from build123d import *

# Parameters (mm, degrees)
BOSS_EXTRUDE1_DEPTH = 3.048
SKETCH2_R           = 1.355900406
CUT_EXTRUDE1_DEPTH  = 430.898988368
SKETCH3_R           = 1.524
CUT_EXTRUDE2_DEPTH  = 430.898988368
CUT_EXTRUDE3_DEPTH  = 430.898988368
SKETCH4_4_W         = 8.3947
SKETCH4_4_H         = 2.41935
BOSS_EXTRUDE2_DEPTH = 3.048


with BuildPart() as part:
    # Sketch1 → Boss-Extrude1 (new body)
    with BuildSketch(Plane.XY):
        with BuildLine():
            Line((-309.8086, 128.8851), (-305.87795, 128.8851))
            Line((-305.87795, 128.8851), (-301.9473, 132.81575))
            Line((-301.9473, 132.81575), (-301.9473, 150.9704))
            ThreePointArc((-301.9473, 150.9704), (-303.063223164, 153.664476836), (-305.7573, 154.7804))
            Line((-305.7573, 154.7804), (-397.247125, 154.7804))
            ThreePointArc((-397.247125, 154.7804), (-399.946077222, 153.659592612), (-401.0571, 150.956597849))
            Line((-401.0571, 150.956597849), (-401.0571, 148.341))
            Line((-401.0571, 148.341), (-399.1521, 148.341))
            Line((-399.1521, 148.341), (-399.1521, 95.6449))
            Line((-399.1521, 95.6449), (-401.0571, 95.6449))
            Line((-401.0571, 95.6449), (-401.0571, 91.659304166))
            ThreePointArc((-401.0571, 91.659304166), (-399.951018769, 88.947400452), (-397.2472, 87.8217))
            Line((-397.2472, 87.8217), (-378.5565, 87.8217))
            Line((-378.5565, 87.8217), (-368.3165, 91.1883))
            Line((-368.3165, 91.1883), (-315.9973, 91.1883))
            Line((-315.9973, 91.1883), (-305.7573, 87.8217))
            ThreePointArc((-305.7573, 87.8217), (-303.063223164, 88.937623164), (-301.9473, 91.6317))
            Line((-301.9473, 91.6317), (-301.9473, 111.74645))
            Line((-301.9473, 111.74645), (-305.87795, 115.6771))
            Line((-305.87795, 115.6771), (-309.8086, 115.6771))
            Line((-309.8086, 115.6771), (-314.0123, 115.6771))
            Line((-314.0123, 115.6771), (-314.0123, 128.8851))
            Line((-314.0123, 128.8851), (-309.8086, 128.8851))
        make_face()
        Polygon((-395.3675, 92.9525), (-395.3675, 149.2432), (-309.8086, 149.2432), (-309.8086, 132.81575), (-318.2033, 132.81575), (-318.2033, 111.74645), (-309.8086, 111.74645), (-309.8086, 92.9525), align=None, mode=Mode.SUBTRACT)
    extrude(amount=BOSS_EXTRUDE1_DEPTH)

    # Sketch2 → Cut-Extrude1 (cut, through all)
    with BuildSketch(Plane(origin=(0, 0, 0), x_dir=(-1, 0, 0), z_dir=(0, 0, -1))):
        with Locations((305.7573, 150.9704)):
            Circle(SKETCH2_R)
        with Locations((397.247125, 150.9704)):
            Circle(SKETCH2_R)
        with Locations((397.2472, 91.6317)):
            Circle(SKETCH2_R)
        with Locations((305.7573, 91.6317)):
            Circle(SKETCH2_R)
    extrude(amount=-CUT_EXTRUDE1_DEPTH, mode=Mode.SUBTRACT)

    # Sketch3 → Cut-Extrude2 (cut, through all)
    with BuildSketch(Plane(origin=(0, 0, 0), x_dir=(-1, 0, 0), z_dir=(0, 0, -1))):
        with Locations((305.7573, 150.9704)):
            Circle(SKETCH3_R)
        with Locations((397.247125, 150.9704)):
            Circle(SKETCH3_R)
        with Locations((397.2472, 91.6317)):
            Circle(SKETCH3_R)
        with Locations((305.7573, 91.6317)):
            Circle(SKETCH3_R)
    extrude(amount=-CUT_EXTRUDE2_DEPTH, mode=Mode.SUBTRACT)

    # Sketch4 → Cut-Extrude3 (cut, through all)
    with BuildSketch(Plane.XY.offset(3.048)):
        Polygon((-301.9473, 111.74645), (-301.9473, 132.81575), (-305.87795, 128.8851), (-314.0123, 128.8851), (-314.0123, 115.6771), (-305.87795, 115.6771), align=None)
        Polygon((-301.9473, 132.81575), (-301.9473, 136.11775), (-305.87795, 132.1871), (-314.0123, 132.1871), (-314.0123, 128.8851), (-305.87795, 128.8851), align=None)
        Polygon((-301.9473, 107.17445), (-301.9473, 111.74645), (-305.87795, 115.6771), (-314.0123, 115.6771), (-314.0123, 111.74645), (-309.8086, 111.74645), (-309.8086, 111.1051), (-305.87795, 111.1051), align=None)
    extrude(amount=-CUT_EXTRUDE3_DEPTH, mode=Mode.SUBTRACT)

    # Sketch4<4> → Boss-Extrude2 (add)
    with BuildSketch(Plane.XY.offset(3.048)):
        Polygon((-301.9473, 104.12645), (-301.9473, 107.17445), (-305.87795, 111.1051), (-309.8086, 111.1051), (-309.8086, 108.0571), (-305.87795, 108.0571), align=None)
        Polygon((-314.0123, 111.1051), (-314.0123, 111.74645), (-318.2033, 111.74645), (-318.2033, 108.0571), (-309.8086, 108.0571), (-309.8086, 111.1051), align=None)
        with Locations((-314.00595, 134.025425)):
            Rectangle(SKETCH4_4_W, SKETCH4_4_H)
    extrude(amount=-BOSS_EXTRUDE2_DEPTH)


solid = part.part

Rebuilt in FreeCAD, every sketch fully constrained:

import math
import FreeCAD as App
import Part
import Sketcher
Q = App.Units.Quantity


def add_polygon(sketch, points):
    """Adds a closed chain of lines whose ends are joined by coincident constraints."""
    first, n = sketch.GeometryCount, len(points)
    for a, b in zip(points, points[1:] + points[:1]):
        sketch.addGeometry(Part.LineSegment(App.Vector(*a, 0), App.Vector(*b, 0)), False)
    for i in range(n):
        sketch.addConstraint(Sketcher.Constraint("Coincident", first + i, 2, first + (i + 1) % n, 1))

doc = App.newDocument("Part")
body = doc.addObject("PartDesign::Body", "Body")

sketch1 = body.newObject("Sketcher::SketchObject", "Sketch")
sketch1.AttachmentSupport = (doc.getObject("XY_Plane"), [""])
sketch1.MapMode = "FlatFace"
sketch1.addGeometry(Part.LineSegment(App.Vector(-305.87795, 128.8851, 0), App.Vector(-301.9473, 132.81575, 0)), False)
sketch1.addGeometry(Part.LineSegment(App.Vector(-301.9473, 132.81575, 0), App.Vector(-301.9473, 150.9704, 0)), False)
sketch1.addGeometry(Part.ArcOfCircle(Part.Circle(App.Vector(-305.7573, 150.9704, 0), App.Vector(0, 0, 1), 3.81), math.radians(0), math.radians(90)), False)
sketch1.addGeometry(Part.LineSegment(App.Vector(-305.7573, 154.7804, 0), App.Vector(-397.247125, 154.7804, 0)), False)
sketch1.addGeometry(Part.ArcOfCircle(Part.Circle(App.Vector(-397.247125, 150.9704, 0), App.Vector(0, 0, 1), 3.81), math.radians(90), math.radians(180.207561)), False)
sketch1.addGeometry(Part.LineSegment(App.Vector(-401.0571, 150.956598, 0), App.Vector(-401.0571, 148.341, 0)), False)
sketch1.addGeometry(Part.LineSegment(App.Vector(-401.0571, 148.341, 0), App.Vector(-399.1521, 148.341, 0)), False)
sketch1.addGeometry(Part.LineSegment(App.Vector(-399.1521, 148.341, 0), App.Vector(-399.1521, 95.6449, 0)), False)
sketch1.addGeometry(Part.LineSegment(App.Vector(-399.1521, 95.6449, 0), App.Vector(-401.0571, 95.6449, 0)), False)
sketch1.addGeometry(Part.LineSegment(App.Vector(-401.0571, 95.6449, 0), App.Vector(-401.0571, 91.659304, 0)), False)
sketch1.addGeometry(Part.ArcOfCircle(Part.Circle(App.Vector(-397.2472, 91.6317, 0), App.Vector(0, 0, 1), 3.81), math.radians(179.584878), math.radians(270)), False)
sketch1.addGeometry(Part.LineSegment(App.Vector(-397.2472, 87.8217, 0), App.Vector(-378.5565, 87.8217, 0)), False)
sketch1.addGeometry(Part.LineSegment(App.Vector(-378.5565, 87.8217, 0), App.Vector(-368.3165, 91.1883, 0)), False)
sketch1.addGeometry(Part.LineSegment(App.Vector(-368.3165, 91.1883, 0), App.Vector(-315.9973, 91.1883, 0)), False)
sketch1.addGeometry(Part.LineSegment(App.Vector(-315.9973, 91.1883, 0), App.Vector(-305.7573, 87.8217, 0)), False)
sketch1.addGeometry(Part.ArcOfCircle(Part.Circle(App.Vector(-305.7573, 91.6317, 0), App.Vector(0, 0, 1), 3.81), math.radians(-90), math.radians(0)), False)
sketch1.addGeometry(Part.LineSegment(App.Vector(-301.9473, 91.6317, 0), App.Vector(-301.9473, 111.74645, 0)), False)
sketch1.addGeometry(Part.LineSegment(App.Vector(-301.9473, 111.74645, 0), App.Vector(-305.87795, 115.6771, 0)), False)
sketch1.addGeometry(Part.LineSegment(App.Vector(-305.87795, 115.6771, 0), App.Vector(-314.0123, 115.6771, 0)), False)
sketch1.addGeometry(Part.LineSegment(App.Vector(-314.0123, 115.6771, 0), App.Vector(-314.0123, 128.8851, 0)), False)
sketch1.addGeometry(Part.LineSegment(App.Vector(-314.0123, 128.8851, 0), App.Vector(-305.87795, 128.8851, 0)), False)
add_polygon(sketch1, [(-309.8086, 92.9525), (-395.3675, 92.9525), (-395.3675, 149.2432), (-309.8086, 149.2432), (-309.8086, 132.81575), (-318.2033, 132.81575), (-318.2033, 111.74645), (-309.8086, 111.74645)])
sketch1.addConstraint([
    Sketcher.Constraint("Coincident", 0, 2, 1, 1),
    Sketcher.Constraint("Tangent", 1, 2, 2, 1),
    Sketcher.Constraint("Tangent", 2, 2, 3, 1),
    Sketcher.Constraint("Tangent", 3, 2, 4, 1),
    Sketcher.Constraint("Coincident", 4, 2, 5, 1),
    Sketcher.Constraint("Coincident", 5, 2, 6, 1),
    Sketcher.Constraint("Coincident", 6, 2, 7, 1),
    Sketcher.Constraint("Coincident", 7, 2, 8, 1),
    Sketcher.Constraint("Coincident", 8, 2, 9, 1),
    Sketcher.Constraint("Coincident", 9, 2, 10, 1),
    Sketcher.Constraint("Tangent", 10, 2, 11, 1),
    Sketcher.Constraint("Coincident", 11, 2, 12, 1),
    Sketcher.Constraint("Coincident", 12, 2, 13, 1),
    Sketcher.Constraint("Coincident", 13, 2, 14, 1),
    Sketcher.Constraint("Coincident", 14, 2, 15, 1),
    Sketcher.Constraint("Tangent", 15, 2, 16, 1),
    Sketcher.Constraint("Coincident", 16, 2, 17, 1),
    Sketcher.Constraint("Coincident", 17, 2, 18, 1),
    Sketcher.Constraint("Coincident", 18, 2, 19, 1),
    Sketcher.Constraint("Coincident", 19, 2, 20, 1),
    Sketcher.Constraint("Coincident", 20, 2, 0, 1),
    Sketcher.Constraint("Vertical", 1),
    Sketcher.Constraint("Horizontal", 3),
    Sketcher.Constraint("Vertical", 5),
    Sketcher.Constraint("Horizontal", 6),
    Sketcher.Constraint("Vertical", 7),
    Sketcher.Constraint("Horizontal", 8),
    Sketcher.Constraint("Vertical", 9),
    Sketcher.Constraint("Horizontal", 11),
    Sketcher.Constraint("Horizontal", 13),
    Sketcher.Constraint("Vertical", 16),
    Sketcher.Constraint("Horizontal", 18),
    Sketcher.Constraint("Vertical", 19),
    Sketcher.Constraint("Horizontal", 20),
    Sketcher.Constraint("Horizontal", 21),
    Sketcher.Constraint("Vertical", 22),
    Sketcher.Constraint("Horizontal", 23),
    Sketcher.Constraint("Vertical", 24),
    Sketcher.Constraint("Horizontal", 25),
    Sketcher.Constraint("Vertical", 26),
    Sketcher.Constraint("Horizontal", 27),
    Sketcher.Constraint("Vertical", 28),
    Sketcher.Constraint("Equal", 2, 4),
    Sketcher.Constraint("Equal", 4, 10),
    Sketcher.Constraint("Equal", 10, 15),
    Sketcher.Constraint("Perpendicular", 0, 17),
    Sketcher.Constraint("Horizontal", 10, 3, 15, 3),
    Sketcher.Constraint("Horizontal", 0, 2, 24, 2),
    Sketcher.Constraint("Horizontal", 16, 2, 26, 2),
    Sketcher.Constraint("Vertical", 2, 3, 15, 3),
    Sketcher.Constraint("Vertical", 5, 2, 8, 2),
    Sketcher.Constraint("Vertical", 2, 2, 14, 2),
    Sketcher.Constraint("Vertical", 17, 2, 20, 2),
    Sketcher.Constraint("Vertical", 24, 2, 27, 2),
    Sketcher.Constraint("Equal", 12, 14),
    Sketcher.Constraint("Equal", 0, 17),
    Sketcher.Constraint("Radius", 2, Q("0.15 in")),
    Sketcher.Constraint("DistanceY", 19, 1, 19, 2, Q("0.52 in")),
    Sketcher.Constraint("DistanceX", 6, 1, 6, 2, Q("0.075 in")),
    Sketcher.Constraint("DistanceX", 25, 2, 0, 2, Q("0.64 in")),
    Sketcher.Constraint("DistanceX", 25, 2, 25, 1, Q("0.3305 in")),
    Sketcher.Constraint("DistanceY", 26, 2, 26, 1, Q("0.8295 in")),
    Sketcher.Constraint("DistanceY", 10, 3, 7, 2, Q("0.158 in")),
    Sketcher.Constraint("DistanceX", 7, 2, 12, 2, Q("1.214 in")),
    Sketcher.Constraint("DistanceX", 18, 2, 16, 2, Q("0.475 in")),
    Sketcher.Constraint("DistanceY", 10, 3, 21, 2, Q("0.052 in")),
    Sketcher.Constraint("DistanceX", 7, 2, 21, 2, Q("0.149 in")),
    Sketcher.Constraint("DistanceY", 22, 2, 4, 3, Q("0.068 in")),
    Sketcher.Constraint("DistanceX", 11, 1, 11, 2, Q("18.6907 mm")),
    Sketcher.Constraint("DistanceX", 13, 1, 13, 2, Q("52.3192 mm")),
    Sketcher.Constraint("DistanceX", 21, 2, 21, 1, Q("85.5589 mm")),
    Sketcher.Constraint("DistanceY", 7, 2, 7, 1, Q("52.6961 mm")),
    Sketcher.Constraint("DistanceY", 22, 1, 22, 2, Q("56.2907 mm")),
    Sketcher.Constraint("DistanceY", 19, 2, 2, 3, Q("0.8695 in")),
    Sketcher.Constraint("DistanceX", 2, 3, -1, 1, Q("305.7573 mm")),
    Sketcher.Constraint("DistanceY", -1, 1, 2, 3, Q("150.9704 mm")),
    Sketcher.Constraint("DistanceY", -1, 1, 12, 2, Q("91.1883 mm")),
    Sketcher.Constraint("DistanceX", 3, 2, 3, 1, Q("91.489825 mm")),
])
pad1 = body.newObject("PartDesign::Pad", "Pad")
pad1.Profile = sketch1
pad1.Length = Q("0.12 in")

sketch2 = body.newObject("Sketcher::SketchObject", "Sketch001")
sketch2.AttachmentSupport = (doc.getObject("XY_Plane"), [""])
sketch2.MapMode = "FlatFace"
sketch2.addGeometry([
    Part.Circle(App.Vector(-305.7573, 150.9704, 0), App.Vector(0, 0, 1), 1.3559),
    Part.Circle(App.Vector(-397.247125, 150.9704, 0), App.Vector(0, 0, 1), 1.3559),
    Part.Circle(App.Vector(-397.2472, 91.6317, 0), App.Vector(0, 0, 1), 1.3559),
    Part.Circle(App.Vector(-305.7573, 91.6317, 0), App.Vector(0, 0, 1), 1.3559),
], False)
sketch2.addConstraint([
    Sketcher.Constraint("Equal", 0, 1),
    Sketcher.Constraint("Equal", 1, 2),
    Sketcher.Constraint("Equal", 2, 3),
    Sketcher.Constraint("Horizontal", 0, 3, 1, 3),
    Sketcher.Constraint("Horizontal", 2, 3, 3, 3),
    Sketcher.Constraint("Vertical", 0, 3, 3, 3),
    Sketcher.Constraint("Diameter", 0, Q("2.711801 mm")),
    Sketcher.Constraint("DistanceX", 0, 3, -1, 1, Q("305.7573 mm")),
    Sketcher.Constraint("DistanceY", -1, 1, 0, 3, Q("150.9704 mm")),
    Sketcher.Constraint("DistanceX", 2, 3, -1, 1, Q("397.2472 mm")),
    Sketcher.Constraint("DistanceY", -1, 1, 2, 3, Q("91.6317 mm")),
    Sketcher.Constraint("DistanceX", 1, 3, -1, 1, Q("397.247125 mm")),
])
pocket1 = body.newObject("PartDesign::Pocket", "Pocket")
pocket1.Profile = sketch2
pocket1.Type = "ThroughAll"
pocket1.Reversed = True

sketch3 = body.newObject("Sketcher::SketchObject", "Sketch002")
sketch3.AttachmentSupport = (doc.getObject("XY_Plane"), [""])
sketch3.MapMode = "FlatFace"
sketch3.addGeometry([
    Part.Circle(App.Vector(-305.7573, 150.9704, 0), App.Vector(0, 0, 1), 1.524),
    Part.Circle(App.Vector(-397.247125, 150.9704, 0), App.Vector(0, 0, 1), 1.524),
    Part.Circle(App.Vector(-397.2472, 91.6317, 0), App.Vector(0, 0, 1), 1.524),
    Part.Circle(App.Vector(-305.7573, 91.6317, 0), App.Vector(0, 0, 1), 1.524),
], False)
sketch3.addConstraint([
    Sketcher.Constraint("Equal", 0, 1),
    Sketcher.Constraint("Equal", 1, 2),
    Sketcher.Constraint("Equal", 2, 3),
    Sketcher.Constraint("Horizontal", 0, 3, 1, 3),
    Sketcher.Constraint("Horizontal", 2, 3, 3, 3),
    Sketcher.Constraint("Vertical", 0, 3, 3, 3),
    Sketcher.Constraint("Diameter", 0, Q("0.12 in")),
    Sketcher.Constraint("DistanceX", 0, 3, -1, 1, Q("305.7573 mm")),
    Sketcher.Constraint("DistanceY", -1, 1, 0, 3, Q("150.9704 mm")),
    Sketcher.Constraint("DistanceX", 2, 3, -1, 1, Q("397.2472 mm")),
    Sketcher.Constraint("DistanceY", -1, 1, 2, 3, Q("91.6317 mm")),
    Sketcher.Constraint("DistanceX", 1, 3, -1, 1, Q("397.247125 mm")),
])
pocket2 = body.newObject("PartDesign::Pocket", "Pocket001")
pocket2.Profile = sketch3
pocket2.Type = "ThroughAll"
pocket2.Reversed = True

sketch4 = body.newObject("Sketcher::SketchObject", "Sketch003")
sketch4.AttachmentSupport = (doc.getObject("XY_Plane"), [""])
sketch4.MapMode = "FlatFace"
sketch4.AttachmentOffset = App.Placement(App.Vector(0, 0, 0.12 * 25.4), App.Rotation())
add_polygon(sketch4, [(-301.9473, 136.11775), (-305.87795, 132.1871), (-314.0123, 132.1871), (-314.0123, 111.74645), (-309.8086, 111.74645), (-309.8086, 111.1051), (-305.87795, 111.1051), (-301.9473, 107.17445)])
sketch4.addConstraint([
    Sketcher.Constraint("Horizontal", 1),
    Sketcher.Constraint("Vertical", 2),
    Sketcher.Constraint("Horizontal", 3),
    Sketcher.Constraint("Vertical", 4),
    Sketcher.Constraint("Horizontal", 5),
    Sketcher.Constraint("Vertical", 7),
    Sketcher.Constraint("Perpendicular", 0, 6),
    Sketcher.Constraint("Vertical", 0, 2, 5, 2),
    Sketcher.Constraint("Equal", 0, 6),
    Sketcher.Constraint("DistanceY", 4, 2, 0, 2, Q("0.83 in")),
    Sketcher.Constraint("DistanceY", 6, 2, 3, 2, Q("0.18 in")),
    Sketcher.Constraint("DistanceX", 3, 1, 3, 2, Q("0.1655 in")),
    Sketcher.Constraint("DistanceY", 7, 1, 7, 2, Q("1.1395 in")),
    Sketcher.Constraint("DistanceX", 2, 2, 6, 2, Q("0.475 in")),
    Sketcher.Constraint("DistanceY", -1, 1, 0, 2, Q("132.1871 mm")),
    Sketcher.Constraint("DistanceX", 1, 2, -1, 1, Q("314.0123 mm")),
])
pocket3 = body.newObject("PartDesign::Pocket", "Pocket002")
pocket3.Profile = sketch4
pocket3.Type = "ThroughAll"

sketch5 = body.newObject("Sketcher::SketchObject", "Sketch004")
sketch5.AttachmentSupport = (doc.getObject("XY_Plane"), [""])
sketch5.MapMode = "FlatFace"
sketch5.AttachmentOffset = App.Placement(App.Vector(0, 0, 0.12 * 25.4), App.Rotation())
add_polygon(sketch5, [(-301.9473, 104.12645), (-301.9473, 107.17445), (-305.87795, 111.1051), (-314.0123, 111.1051), (-314.0123, 111.74645), (-318.2033, 111.74645), (-318.2033, 108.0571), (-305.87795, 108.0571)])
add_polygon(sketch5, [(-318.2033, 135.2351), (-318.2033, 132.81575), (-309.8086, 132.81575), (-309.8086, 135.2351)])
sketch5.addConstraint([
    Sketcher.Constraint("Vertical", 0),
    Sketcher.Constraint("Horizontal", 2),
    Sketcher.Constraint("Vertical", 3),
    Sketcher.Constraint("Horizontal", 4),
    Sketcher.Constraint("Vertical", 5),
    Sketcher.Constraint("Horizontal", 6),
    Sketcher.Constraint("Vertical", 8),
    Sketcher.Constraint("Horizontal", 9),
    Sketcher.Constraint("Vertical", 10),
    Sketcher.Constraint("Horizontal", 11),
    Sketcher.Constraint("Parallel", 1, 7),
    Sketcher.Constraint("Vertical", 1, 2, 6, 2),
    Sketcher.Constraint("Vertical", 5, 2, 8, 2),
    Sketcher.Constraint("Angle", 1, Q("135 deg")),
    Sketcher.Constraint("DistanceY", 0, 1, 0, 2, Q("0.12 in")),
    Sketcher.Constraint("DistanceY", 7, 2, 3, 2, Q("0.3 in")),
    Sketcher.Constraint("DistanceX", 4, 2, 4, 1, Q("0.165 in")),
    Sketcher.Constraint("DistanceX", 4, 2, 0, 2, Q("0.64 in")),
    Sketcher.Constraint("DistanceY", 1, 2, 10, 2, Q("0.95 in")),
    Sketcher.Constraint("DistanceX", 9, 1, 9, 2, Q("0.3305 in")),
    Sketcher.Constraint("DistanceY", 4, 2, 8, 2, Q("0.8295 in")),
    Sketcher.Constraint("DistanceX", 2, 2, 2, 1, Q("8.13435 mm")),
    Sketcher.Constraint("DistanceX", 0, 2, -1, 1, Q("301.9473 mm")),
    Sketcher.Constraint("DistanceY", -1, 1, 1, 2, Q("111.1051 mm")),
])
pad2 = body.newObject("PartDesign::Pad", "Pad001")
pad2.Profile = sketch5
pad2.Length = Q("0.12 in")
pad2.Reversed = True

doc.recompute()
